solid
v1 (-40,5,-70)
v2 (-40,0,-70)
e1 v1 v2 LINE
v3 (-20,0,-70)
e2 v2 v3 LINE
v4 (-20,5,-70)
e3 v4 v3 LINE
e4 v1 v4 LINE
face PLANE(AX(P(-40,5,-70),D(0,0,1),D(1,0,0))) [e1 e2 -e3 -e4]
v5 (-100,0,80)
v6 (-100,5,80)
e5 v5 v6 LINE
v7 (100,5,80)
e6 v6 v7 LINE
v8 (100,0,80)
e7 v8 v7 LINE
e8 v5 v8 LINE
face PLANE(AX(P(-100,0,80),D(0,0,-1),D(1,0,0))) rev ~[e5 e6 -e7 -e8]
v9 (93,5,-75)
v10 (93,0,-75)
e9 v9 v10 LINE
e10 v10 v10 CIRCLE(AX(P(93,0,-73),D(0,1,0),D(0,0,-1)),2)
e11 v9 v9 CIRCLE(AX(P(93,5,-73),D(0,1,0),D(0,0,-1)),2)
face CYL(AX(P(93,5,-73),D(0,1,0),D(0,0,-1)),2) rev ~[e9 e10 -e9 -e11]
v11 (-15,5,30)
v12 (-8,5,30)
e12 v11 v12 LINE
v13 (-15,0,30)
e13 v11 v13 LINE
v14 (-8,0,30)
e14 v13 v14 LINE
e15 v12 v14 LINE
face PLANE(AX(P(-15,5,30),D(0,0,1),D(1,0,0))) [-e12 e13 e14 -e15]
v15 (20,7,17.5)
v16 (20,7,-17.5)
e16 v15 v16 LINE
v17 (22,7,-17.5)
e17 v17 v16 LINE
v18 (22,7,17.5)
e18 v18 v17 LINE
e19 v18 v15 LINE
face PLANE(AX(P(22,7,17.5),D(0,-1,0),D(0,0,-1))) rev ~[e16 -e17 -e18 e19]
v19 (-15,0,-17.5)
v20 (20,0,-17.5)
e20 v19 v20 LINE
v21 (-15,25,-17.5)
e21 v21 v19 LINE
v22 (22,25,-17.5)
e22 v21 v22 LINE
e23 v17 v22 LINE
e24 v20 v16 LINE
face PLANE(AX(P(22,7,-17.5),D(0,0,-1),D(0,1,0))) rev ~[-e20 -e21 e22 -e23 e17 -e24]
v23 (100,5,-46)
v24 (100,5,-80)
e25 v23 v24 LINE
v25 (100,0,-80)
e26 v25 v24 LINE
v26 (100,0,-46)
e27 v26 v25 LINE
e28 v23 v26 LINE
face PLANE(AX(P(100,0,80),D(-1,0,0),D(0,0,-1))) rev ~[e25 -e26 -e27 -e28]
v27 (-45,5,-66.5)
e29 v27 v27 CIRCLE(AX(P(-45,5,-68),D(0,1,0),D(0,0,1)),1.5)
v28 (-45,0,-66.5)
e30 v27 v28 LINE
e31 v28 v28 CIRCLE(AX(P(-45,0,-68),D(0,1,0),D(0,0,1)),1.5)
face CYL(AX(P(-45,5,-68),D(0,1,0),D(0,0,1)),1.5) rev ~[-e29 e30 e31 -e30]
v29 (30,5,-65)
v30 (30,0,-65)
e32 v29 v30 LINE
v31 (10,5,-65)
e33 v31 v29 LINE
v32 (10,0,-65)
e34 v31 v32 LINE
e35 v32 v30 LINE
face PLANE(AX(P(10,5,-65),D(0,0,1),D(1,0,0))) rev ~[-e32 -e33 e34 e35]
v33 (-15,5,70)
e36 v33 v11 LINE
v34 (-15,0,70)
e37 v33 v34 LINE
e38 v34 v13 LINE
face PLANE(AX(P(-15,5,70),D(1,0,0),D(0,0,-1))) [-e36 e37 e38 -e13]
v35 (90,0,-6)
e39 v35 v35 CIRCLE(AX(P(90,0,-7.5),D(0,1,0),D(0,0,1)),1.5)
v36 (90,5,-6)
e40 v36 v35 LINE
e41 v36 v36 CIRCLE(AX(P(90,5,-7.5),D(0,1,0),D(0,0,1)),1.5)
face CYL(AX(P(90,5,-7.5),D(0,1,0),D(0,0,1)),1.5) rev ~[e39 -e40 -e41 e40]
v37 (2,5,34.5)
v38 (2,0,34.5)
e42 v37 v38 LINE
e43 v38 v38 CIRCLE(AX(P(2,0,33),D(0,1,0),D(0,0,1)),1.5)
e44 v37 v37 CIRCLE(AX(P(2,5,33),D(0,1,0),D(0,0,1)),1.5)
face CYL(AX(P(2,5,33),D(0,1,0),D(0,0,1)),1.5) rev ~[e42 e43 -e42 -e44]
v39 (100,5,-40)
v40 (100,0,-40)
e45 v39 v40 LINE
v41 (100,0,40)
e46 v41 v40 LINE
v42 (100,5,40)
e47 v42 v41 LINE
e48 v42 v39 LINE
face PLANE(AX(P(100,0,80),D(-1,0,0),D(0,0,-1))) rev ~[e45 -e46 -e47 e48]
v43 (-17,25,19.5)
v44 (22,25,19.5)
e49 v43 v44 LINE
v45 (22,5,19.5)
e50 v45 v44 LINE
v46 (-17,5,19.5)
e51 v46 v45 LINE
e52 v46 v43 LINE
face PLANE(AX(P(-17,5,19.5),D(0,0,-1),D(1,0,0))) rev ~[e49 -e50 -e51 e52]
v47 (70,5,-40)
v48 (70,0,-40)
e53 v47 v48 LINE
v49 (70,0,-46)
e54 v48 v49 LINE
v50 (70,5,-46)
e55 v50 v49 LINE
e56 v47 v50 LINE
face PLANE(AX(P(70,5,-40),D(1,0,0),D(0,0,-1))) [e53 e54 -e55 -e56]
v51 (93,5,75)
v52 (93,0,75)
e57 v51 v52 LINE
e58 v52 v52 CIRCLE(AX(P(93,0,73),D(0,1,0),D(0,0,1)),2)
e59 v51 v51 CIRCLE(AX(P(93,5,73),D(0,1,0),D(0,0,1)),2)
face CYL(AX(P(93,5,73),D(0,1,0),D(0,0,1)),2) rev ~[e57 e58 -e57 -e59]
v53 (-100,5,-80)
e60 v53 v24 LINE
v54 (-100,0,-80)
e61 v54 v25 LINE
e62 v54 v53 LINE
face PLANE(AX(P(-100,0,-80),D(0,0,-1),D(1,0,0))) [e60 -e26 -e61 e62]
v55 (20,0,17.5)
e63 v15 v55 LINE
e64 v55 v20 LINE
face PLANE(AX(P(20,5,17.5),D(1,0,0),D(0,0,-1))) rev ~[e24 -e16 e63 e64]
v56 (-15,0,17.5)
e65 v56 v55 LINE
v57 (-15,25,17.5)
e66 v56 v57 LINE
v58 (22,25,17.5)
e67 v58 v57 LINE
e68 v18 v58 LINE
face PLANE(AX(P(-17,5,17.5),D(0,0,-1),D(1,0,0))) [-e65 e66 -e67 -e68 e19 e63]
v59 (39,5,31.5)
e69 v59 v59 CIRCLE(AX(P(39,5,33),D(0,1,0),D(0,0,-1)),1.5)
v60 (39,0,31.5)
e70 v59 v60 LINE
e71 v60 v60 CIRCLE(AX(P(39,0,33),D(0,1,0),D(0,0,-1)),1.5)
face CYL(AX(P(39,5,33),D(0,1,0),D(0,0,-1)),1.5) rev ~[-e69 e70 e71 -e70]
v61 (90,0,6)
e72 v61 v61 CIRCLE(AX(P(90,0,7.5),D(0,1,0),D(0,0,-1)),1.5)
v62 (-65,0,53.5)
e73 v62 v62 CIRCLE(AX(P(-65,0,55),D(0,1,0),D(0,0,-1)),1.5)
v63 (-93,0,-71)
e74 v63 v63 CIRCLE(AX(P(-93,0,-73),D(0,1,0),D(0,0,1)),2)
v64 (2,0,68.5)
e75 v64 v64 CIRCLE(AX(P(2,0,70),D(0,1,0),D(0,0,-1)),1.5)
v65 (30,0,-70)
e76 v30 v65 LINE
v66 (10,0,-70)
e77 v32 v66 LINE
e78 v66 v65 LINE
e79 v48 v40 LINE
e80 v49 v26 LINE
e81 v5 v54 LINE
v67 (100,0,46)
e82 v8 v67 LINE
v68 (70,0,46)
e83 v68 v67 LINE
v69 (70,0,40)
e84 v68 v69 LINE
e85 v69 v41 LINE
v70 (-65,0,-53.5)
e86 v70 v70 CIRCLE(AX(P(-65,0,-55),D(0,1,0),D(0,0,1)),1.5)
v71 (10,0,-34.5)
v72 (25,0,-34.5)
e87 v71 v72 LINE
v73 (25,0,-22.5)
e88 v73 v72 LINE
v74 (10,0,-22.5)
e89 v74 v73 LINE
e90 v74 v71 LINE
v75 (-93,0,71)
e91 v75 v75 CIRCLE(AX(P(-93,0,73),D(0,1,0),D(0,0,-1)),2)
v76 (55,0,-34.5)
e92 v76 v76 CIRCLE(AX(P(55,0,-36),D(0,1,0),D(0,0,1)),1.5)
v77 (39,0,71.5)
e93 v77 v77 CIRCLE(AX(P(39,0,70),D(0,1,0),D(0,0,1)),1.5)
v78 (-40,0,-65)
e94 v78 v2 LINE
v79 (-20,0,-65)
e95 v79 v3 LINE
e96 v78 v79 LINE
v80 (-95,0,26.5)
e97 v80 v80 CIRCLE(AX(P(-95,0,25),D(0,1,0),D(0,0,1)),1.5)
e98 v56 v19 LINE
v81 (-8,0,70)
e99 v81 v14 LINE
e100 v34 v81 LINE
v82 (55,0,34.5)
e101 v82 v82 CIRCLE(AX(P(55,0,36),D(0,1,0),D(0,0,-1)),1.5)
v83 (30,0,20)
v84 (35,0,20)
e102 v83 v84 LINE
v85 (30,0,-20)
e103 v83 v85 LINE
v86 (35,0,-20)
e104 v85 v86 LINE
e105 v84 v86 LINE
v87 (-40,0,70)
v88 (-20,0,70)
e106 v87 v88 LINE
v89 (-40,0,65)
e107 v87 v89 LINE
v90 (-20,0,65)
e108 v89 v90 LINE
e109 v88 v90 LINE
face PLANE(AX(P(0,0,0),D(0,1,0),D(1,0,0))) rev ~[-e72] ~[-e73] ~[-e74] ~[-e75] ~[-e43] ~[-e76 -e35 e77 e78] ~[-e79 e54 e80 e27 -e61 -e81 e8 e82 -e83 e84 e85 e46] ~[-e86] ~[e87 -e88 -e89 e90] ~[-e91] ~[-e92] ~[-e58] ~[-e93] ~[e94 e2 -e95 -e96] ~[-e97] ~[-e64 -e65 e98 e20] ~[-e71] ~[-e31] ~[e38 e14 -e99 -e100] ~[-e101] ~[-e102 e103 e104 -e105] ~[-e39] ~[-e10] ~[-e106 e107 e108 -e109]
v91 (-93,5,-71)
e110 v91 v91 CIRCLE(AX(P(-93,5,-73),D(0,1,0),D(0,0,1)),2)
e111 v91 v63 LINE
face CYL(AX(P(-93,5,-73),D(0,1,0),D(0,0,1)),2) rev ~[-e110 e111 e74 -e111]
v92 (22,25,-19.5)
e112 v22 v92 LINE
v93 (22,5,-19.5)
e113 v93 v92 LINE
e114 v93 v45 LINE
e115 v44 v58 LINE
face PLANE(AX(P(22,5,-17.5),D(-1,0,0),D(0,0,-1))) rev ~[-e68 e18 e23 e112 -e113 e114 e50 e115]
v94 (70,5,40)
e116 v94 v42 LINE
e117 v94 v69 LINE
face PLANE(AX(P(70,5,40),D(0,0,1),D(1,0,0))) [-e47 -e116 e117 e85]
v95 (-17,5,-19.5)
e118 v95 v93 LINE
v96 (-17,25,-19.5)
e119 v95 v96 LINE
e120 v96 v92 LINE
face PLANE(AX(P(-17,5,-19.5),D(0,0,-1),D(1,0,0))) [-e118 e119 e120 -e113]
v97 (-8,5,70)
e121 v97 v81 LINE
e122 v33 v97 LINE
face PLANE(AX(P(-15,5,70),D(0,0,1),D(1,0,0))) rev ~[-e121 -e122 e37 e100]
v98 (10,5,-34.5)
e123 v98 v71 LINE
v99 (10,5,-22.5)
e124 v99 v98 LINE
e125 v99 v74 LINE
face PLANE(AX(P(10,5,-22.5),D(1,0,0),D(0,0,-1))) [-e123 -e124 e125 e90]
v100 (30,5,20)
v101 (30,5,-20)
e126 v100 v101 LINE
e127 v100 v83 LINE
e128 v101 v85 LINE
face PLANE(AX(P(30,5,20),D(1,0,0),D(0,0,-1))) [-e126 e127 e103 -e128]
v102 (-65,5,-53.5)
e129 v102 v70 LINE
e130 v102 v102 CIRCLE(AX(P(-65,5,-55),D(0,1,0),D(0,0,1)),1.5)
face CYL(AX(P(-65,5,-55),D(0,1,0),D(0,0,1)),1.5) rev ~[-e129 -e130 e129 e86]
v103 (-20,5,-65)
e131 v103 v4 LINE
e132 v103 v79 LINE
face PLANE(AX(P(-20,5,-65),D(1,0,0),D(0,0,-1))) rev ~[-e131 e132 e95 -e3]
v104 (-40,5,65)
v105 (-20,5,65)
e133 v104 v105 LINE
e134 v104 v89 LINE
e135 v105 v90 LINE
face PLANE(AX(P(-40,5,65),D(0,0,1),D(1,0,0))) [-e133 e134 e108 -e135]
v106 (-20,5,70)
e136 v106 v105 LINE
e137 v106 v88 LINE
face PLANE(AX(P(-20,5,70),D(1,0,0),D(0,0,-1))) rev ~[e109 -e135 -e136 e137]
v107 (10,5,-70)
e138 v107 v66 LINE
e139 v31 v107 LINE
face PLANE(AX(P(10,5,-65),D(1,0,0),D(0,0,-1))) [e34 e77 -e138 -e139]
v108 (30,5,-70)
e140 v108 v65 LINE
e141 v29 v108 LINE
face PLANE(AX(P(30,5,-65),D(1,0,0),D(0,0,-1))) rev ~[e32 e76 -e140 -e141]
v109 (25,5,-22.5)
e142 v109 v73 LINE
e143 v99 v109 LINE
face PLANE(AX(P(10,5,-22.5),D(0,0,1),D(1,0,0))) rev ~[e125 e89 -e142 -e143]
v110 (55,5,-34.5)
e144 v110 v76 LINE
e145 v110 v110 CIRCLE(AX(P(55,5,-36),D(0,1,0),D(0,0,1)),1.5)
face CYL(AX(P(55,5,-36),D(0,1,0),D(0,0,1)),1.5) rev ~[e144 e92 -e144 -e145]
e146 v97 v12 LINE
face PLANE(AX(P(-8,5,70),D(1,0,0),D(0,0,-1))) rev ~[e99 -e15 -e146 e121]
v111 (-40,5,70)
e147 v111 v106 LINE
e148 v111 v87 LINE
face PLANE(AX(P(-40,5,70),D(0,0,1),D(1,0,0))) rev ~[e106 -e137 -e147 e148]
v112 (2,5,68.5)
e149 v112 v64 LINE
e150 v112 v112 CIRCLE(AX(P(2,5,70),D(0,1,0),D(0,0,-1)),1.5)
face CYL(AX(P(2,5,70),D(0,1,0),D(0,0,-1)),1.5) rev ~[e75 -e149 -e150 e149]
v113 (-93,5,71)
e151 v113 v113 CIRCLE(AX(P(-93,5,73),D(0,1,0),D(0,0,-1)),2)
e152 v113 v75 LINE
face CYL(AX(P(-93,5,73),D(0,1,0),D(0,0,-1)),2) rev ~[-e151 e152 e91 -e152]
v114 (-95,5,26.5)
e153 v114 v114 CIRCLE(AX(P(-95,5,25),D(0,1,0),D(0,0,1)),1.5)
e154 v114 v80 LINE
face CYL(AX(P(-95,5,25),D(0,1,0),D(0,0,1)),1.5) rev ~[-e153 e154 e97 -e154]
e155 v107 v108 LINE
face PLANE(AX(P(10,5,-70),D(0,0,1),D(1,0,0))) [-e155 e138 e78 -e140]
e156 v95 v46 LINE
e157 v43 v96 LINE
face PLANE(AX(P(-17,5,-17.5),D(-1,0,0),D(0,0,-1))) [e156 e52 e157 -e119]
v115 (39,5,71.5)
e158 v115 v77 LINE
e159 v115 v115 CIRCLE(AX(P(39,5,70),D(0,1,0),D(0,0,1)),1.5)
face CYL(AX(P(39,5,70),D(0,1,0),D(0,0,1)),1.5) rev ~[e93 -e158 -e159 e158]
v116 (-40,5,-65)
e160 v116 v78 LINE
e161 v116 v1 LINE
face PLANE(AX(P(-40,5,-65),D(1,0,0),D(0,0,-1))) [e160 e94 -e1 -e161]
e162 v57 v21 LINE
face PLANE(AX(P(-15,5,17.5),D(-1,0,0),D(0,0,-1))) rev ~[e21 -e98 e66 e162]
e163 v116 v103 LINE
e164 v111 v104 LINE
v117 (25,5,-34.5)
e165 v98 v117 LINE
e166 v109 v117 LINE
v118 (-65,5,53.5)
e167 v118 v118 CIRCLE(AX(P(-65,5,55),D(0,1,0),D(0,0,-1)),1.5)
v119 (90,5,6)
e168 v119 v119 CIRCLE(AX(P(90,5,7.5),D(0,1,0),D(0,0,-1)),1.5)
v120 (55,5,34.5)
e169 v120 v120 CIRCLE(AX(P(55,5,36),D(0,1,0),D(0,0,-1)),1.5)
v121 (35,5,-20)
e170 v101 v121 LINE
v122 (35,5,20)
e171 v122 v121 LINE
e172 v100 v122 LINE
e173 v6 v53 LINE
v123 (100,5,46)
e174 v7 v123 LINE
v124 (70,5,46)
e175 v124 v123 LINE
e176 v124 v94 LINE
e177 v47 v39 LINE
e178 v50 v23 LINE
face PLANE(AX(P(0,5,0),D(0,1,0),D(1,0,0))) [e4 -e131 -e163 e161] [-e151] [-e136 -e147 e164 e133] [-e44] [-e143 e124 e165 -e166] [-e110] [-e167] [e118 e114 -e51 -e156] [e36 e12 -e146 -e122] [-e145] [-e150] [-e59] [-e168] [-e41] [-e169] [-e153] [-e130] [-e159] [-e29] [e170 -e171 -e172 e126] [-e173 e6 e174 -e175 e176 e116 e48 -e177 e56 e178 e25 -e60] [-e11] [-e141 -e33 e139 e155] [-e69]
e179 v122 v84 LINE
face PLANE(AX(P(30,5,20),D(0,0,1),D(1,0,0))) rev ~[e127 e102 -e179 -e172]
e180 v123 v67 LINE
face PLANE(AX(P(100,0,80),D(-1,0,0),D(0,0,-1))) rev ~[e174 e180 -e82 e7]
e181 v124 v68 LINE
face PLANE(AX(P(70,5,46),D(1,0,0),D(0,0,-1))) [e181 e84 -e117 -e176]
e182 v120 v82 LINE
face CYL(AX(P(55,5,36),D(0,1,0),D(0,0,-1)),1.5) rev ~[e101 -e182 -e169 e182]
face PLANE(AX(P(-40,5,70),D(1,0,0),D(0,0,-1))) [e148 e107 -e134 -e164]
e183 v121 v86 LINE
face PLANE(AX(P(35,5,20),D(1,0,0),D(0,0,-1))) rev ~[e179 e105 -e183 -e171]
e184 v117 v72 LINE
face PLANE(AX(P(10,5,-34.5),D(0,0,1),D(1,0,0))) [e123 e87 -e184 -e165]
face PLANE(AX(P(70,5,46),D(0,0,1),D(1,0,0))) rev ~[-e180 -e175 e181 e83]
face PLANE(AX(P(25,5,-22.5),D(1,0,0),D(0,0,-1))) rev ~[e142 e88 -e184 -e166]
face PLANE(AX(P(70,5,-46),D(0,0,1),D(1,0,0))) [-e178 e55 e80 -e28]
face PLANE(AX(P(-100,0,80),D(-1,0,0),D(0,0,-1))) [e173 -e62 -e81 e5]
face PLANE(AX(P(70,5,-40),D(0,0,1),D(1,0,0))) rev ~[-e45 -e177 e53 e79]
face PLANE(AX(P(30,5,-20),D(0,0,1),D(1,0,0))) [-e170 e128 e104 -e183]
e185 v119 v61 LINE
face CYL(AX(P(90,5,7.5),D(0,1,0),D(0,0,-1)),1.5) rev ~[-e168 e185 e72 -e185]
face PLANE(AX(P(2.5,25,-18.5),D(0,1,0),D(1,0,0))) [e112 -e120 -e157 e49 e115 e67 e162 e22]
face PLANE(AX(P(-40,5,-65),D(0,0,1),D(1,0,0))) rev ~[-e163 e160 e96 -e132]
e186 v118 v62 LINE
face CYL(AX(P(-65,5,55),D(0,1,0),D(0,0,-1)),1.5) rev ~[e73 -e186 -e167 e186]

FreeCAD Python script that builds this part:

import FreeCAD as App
import Part
import Sketcher

V = App.Vector

doc = App.newDocument("Part")
params = doc.addObject("Spreadsheet::Sheet", "Params")
for row, (alias, value) in enumerate([
    ("sketch1_width", "200 mm"),
    ("sketch1_height", "160 mm"),
    ("pad1_length", "5 mm"),
    ("sketch2_diameter", "4 mm"),
    ("pocket1_length", "5 mm"),
    ("sketch3_diameter", "3 mm"),
    ("pocket2_length", "5 mm"),
    ("sketch4_diameter", "3 mm"),
    ("pocket3_length", "5 mm"),
    ("sketch5_width", "35 mm"),
    ("pocket4_length", "5 mm"),
    ("sketch6_width", "7 mm"),
    ("sketch6_width2", "5 mm"),
    ("sketch6_width3", "20 mm"),
    ("sketch6_height", "40 mm"),
    ("pocket5_length", "5 mm"),
    ("sketch7_width", "15 mm"),
    ("sketch7_width2", "30 mm"),
    ("sketch7_height", "12 mm"),
    ("sketch7_height2", "6 mm"),
    ("pocket6_length", "5 mm"),
    ("sketch8_width", "20 mm"),
    ("sketch8_height", "5 mm"),
    ("pocket7_length", "5 mm"),
    ("sketch9_diameter", "3 mm"),
    ("pocket8_length", "5 mm"),
    ("sketch10_diameter", "3 mm"),
    ("pocket9_length", "5 mm"),
    ("sketch11_diameter", "3 mm"),
    ("pocket10_length", "5 mm"),
    ("sketch12_width", "2 mm"),
    ("sketch12_height", "35 mm"),
    ("pad2_length", "20 mm"),
    ("sketch13_width", "39 mm"),
    ("sketch13_height", "2 mm"),
    ("pad3_length", "20 mm"),
    ("sketch14_width", "39 mm"),
    ("sketch14_height", "2 mm"),
    ("pad4_length", "20 mm"),
    ("sketch15_width", "18 mm"),
    ("sketch15_height", "35 mm"),
    ("pocket11_length", "20 mm"),
], start=1):
    params.set(f"A{row}", alias)
    params.set(f"B{row}", "=" + value)
    params.setAlias(f"B{row}", alias)

body = doc.addObject("PartDesign::Body", "Body")

# Sketch on XZ plane
sketch1 = body.newObject("Sketcher::SketchObject", "Sketch")
sketch1.AttachmentSupport = (doc.getObject("XZ_Plane"), [""])
sketch1.MapMode = "FlatFace"
sketch1.addGeometry([
    Part.LineSegment(V(-100, -80, 0), V(-100, 80, 0)),
    Part.LineSegment(V(-100, 80, 0), V(100, 80, 0)),
    Part.LineSegment(V(100, 80, 0), V(100, -80, 0)),
    Part.LineSegment(V(100, -80, 0), V(-100, -80, 0)),
], False)
sketch1.addConstraint([
    Sketcher.Constraint("Coincident", 0, 2, 1, 1),
    Sketcher.Constraint("Coincident", 1, 2, 2, 1),
    Sketcher.Constraint("Coincident", 2, 2, 3, 1),
    Sketcher.Constraint("Coincident", 3, 2, 0, 1),
    Sketcher.Constraint("Vertical", 0),
    Sketcher.Constraint("Horizontal", 1),
    Sketcher.Constraint("Vertical", 2),
    Sketcher.Constraint("Horizontal", 3),
    Sketcher.Constraint("Symmetric", 0, 2, 2, 2, -1, 1),
    Sketcher.Constraint("DistanceX", 1, 1, 1, 2, 200.0),
    Sketcher.Constraint("DistanceY", 0, 1, 0, 2, 160.0),
])
sketch1.setExpression("Constraints[9]", "Params.sketch1_width")
sketch1.setExpression("Constraints[10]", "Params.sketch1_height")
pad1 = body.newObject("PartDesign::Pad", "Pad")
pad1.Profile = sketch1
pad1.setExpression("Length", "Params.pad1_length")
pad1.Reversed = True

# Sketch on XZ plane
sketch2 = body.newObject("Sketcher::SketchObject", "Sketch001")
sketch2.AttachmentSupport = (doc.getObject("XZ_Plane"), [""])
sketch2.MapMode = "FlatFace"
sketch2.AttachmentOffset = App.Placement(V(0, 0, -5), App.Rotation())
sketch2.addGeometry([
    Part.Circle(V(-93, -73, 0), V(0, 0, 1), 2),
    Part.Circle(V(93, -73, 0), V(0, 0, 1), 2),
    Part.Circle(V(93, 73, 0), V(0, 0, 1), 2),
    Part.Circle(V(-93, 73, 0), V(0, 0, 1), 2),
], False)
sketch2.addConstraint([
    Sketcher.Constraint("Equal", 0, 1),
    Sketcher.Constraint("Equal", 1, 2),
    Sketcher.Constraint("Equal", 2, 3),
    Sketcher.Constraint("Symmetric", 0, 3, 2, 3, -1, 1),
    Sketcher.Constraint("Symmetric", 1, 3, 3, 3, -1, 1),
    Sketcher.Constraint("Symmetric", 0, 3, 1, 3, -2),
    Sketcher.Constraint("Diameter", 0, 4.0),
    Sketcher.Constraint("DistanceX", 0, 3, -1, 1, 93.0),
    Sketcher.Constraint("DistanceY", 0, 3, -1, 1, 73.0),
])
sketch2.setExpression("Constraints[6]", "Params.sketch2_diameter")
pocket1 = body.newObject("PartDesign::Pocket", "Pocket")
pocket1.Profile = sketch2
pocket1.setExpression("Length", "Params.pocket1_length")
pocket1.Reversed = True

# Sketch on XZ plane
sketch3 = body.newObject("Sketcher::SketchObject", "Sketch002")
sketch3.AttachmentSupport = (doc.getObject("XZ_Plane"), [""])
sketch3.MapMode = "FlatFace"
sketch3.AttachmentOffset = App.Placement(V(0, 0, -5), App.Rotation())
sketch3.addGeometry([
    Part.Circle(V(90, -7.5, 0), V(0, 0, 1), 1.5),
    Part.Circle(V(90, 7.5, 0), V(0, 0, 1), 1.5),
], False)
sketch3.addConstraint([
    Sketcher.Constraint("Equal", 0, 1),
    Sketcher.Constraint("Symmetric", 0, 3, 1, 3, -1),
    Sketcher.Constraint("Diameter", 0, 3.0),
    Sketcher.Constraint("DistanceX", -1, 1, 0, 3, 90.0),
    Sketcher.Constraint("DistanceY", 0, 3, 1, 3, 15.0),
])
sketch3.setExpression("Constraints[2]", "Params.sketch3_diameter")
pocket2 = body.newObject("PartDesign::Pocket", "Pocket001")
pocket2.Profile = sketch3
pocket2.setExpression("Length", "Params.pocket2_length")
pocket2.Reversed = True

# Sketch on XZ plane
sketch4 = body.newObject("Sketcher::SketchObject", "Sketch003")
sketch4.AttachmentSupport = (doc.getObject("XZ_Plane"), [""])
sketch4.MapMode = "FlatFace"
sketch4.AttachmentOffset = App.Placement(V(0, 0, -5), App.Rotation())
sketch4.addGeometry([
    Part.Circle(V(55, -36, 0), V(0, 0, 1), 1.5),
    Part.Circle(V(55, 36, 0), V(0, 0, 1), 1.5),
], False)
sketch4.addConstraint([
    Sketcher.Constraint("Equal", 0, 1),
    Sketcher.Constraint("Symmetric", 0, 3, 1, 3, -1),
    Sketcher.Constraint("Diameter", 0, 3.0),
    Sketcher.Constraint("DistanceX", -1, 1, 0, 3, 55.0),
    Sketcher.Constraint("DistanceY", 0, 3, -1, 1, 36.0),
])
sketch4.setExpression("Constraints[2]", "Params.sketch4_diameter")
pocket3 = body.newObject("PartDesign::Pocket", "Pocket002")
pocket3.Profile = sketch4
pocket3.setExpression("Length", "Params.pocket3_length")
pocket3.Reversed = True

# Sketch on XZ plane
sketch5 = body.newObject("Sketcher::SketchObject", "Sketch004")
sketch5.AttachmentSupport = (doc.getObject("XZ_Plane"), [""])
sketch5.MapMode = "FlatFace"
sketch5.AttachmentOffset = App.Placement(V(0, 0, -5), App.Rotation())
sketch5.addGeometry([
    Part.LineSegment(V(-15, -17.5, 0), V(-15, 17.5, 0)),
    Part.LineSegment(V(-15, 17.5, 0), V(20, 17.5, 0)),
    Part.LineSegment(V(20, 17.5, 0), V(20, -17.5, 0)),
    Part.LineSegment(V(20, -17.5, 0), V(-15, -17.5, 0)),
], False)
sketch5.addConstraint([
    Sketcher.Constraint("Coincident", 0, 2, 1, 1),
    Sketcher.Constraint("Coincident", 1, 2, 2, 1),
    Sketcher.Constraint("Coincident", 2, 2, 3, 1),
    Sketcher.Constraint("Coincident", 3, 2, 0, 1),
    Sketcher.Constraint("Vertical", 0),
    Sketcher.Constraint("Horizontal", 1),
    Sketcher.Constraint("Vertical", 2),
    Sketcher.Constraint("Horizontal", 3),
    Sketcher.Constraint("Equal", 3, 0),
    Sketcher.Constraint("DistanceX", 1, 1, 1, 2, 35.0),
    Sketcher.Constraint("DistanceX", 0, 2, -1, 1, 15.0),
    Sketcher.Constraint("DistanceY", -1, 1, 0, 2, 17.5),
])
sketch5.setExpression("Constraints[9]", "Params.sketch5_width")
pocket4 = body.newObject("PartDesign::Pocket", "Pocket003")
pocket4.Profile = sketch5
pocket4.setExpression("Length", "Params.pocket4_length")
pocket4.Reversed = True

# Sketch on XZ plane
sketch6 = body.newObject("Sketcher::SketchObject", "Sketch005")
sketch6.AttachmentSupport = (doc.getObject("XZ_Plane"), [""])
sketch6.MapMode = "FlatFace"
sketch6.AttachmentOffset = App.Placement(V(0, 0, -5), App.Rotation())
sketch6.addGeometry([
    Part.LineSegment(V(-15, 30, 0), V(-15, 70, 0)),  # 0
    Part.LineSegment(V(-15, 70, 0), V(-8, 70, 0)),  # 1
    Part.LineSegment(V(-8, 70, 0), V(-8, 30, 0)),  # 2
    Part.LineSegment(V(-8, 30, 0), V(-15, 30, 0)),  # 3
    Part.LineSegment(V(30, -20, 0), V(30, 20, 0)),  # 4
    Part.LineSegment(V(30, 20, 0), V(35, 20, 0)),  # 5
    Part.LineSegment(V(35, 20, 0), V(35, -20, 0)),  # 6
    Part.LineSegment(V(35, -20, 0), V(30, -20, 0)),  # 7
    Part.LineSegment(V(-40, -70, 0), V(-40, -65, 0)),  # 8
    Part.LineSegment(V(-40, -65, 0), V(-20, -65, 0)),  # 9
    Part.LineSegment(V(-20, -65, 0), V(-20, -70, 0)),  # 10
    Part.LineSegment(V(-20, -70, 0), V(-40, -70, 0)),  # 11
    Part.LineSegment(V(-40, 65, 0), V(-40, 70, 0)),  # 12
    Part.LineSegment(V(-40, 70, 0), V(-20, 70, 0)),  # 13
    Part.LineSegment(V(-20, 70, 0), V(-20, 65, 0)),  # 14
    Part.LineSegment(V(-20, 65, 0), V(-40, 65, 0)),  # 15
], False)
sketch6.addConstraint([
    Sketcher.Constraint("Coincident", 0, 2, 1, 1),
    Sketcher.Constraint("Coincident", 1, 2, 2, 1),
    Sketcher.Constraint("Coincident", 2, 2, 3, 1),
    Sketcher.Constraint("Coincident", 3, 2, 0, 1),
    Sketcher.Constraint("Coincident", 4, 2, 5, 1),
    Sketcher.Constraint("Coincident", 5, 2, 6, 1),
    Sketcher.Constraint("Coincident", 6, 2, 7, 1),
    Sketcher.Constraint("Coincident", 7, 2, 4, 1),
    Sketcher.Constraint("Coincident", 8, 2, 9, 1),
    Sketcher.Constraint("Coincident", 9, 2, 10, 1),
    Sketcher.Constraint("Coincident", 10, 2, 11, 1),
    Sketcher.Constraint("Coincident", 11, 2, 8, 1),
    Sketcher.Constraint("Coincident", 12, 2, 13, 1),
    Sketcher.Constraint("Coincident", 13, 2, 14, 1),
    Sketcher.Constraint("Coincident", 14, 2, 15, 1),
    Sketcher.Constraint("Coincident", 15, 2, 12, 1),
    Sketcher.Constraint("Vertical", 0),
    Sketcher.Constraint("Horizontal", 1),
    Sketcher.Constraint("Vertical", 2),
    Sketcher.Constraint("Horizontal", 3),
    Sketcher.Constraint("Vertical", 4),
    Sketcher.Constraint("Horizontal", 5),
    Sketcher.Constraint("Vertical", 6),
    Sketcher.Constraint("Horizontal", 7),
    Sketcher.Constraint("Vertical", 8),
    Sketcher.Constraint("Horizontal", 9),
    Sketcher.Constraint("Vertical", 10),
    Sketcher.Constraint("Horizontal", 11),
    Sketcher.Constraint("Vertical", 12),
    Sketcher.Constraint("Horizontal", 13),
    Sketcher.Constraint("Vertical", 14),
    Sketcher.Constraint("Horizontal", 15),
    Sketcher.Constraint("Symmetric", 11, 2, 12, 2, -1),
    Sketcher.Constraint("Symmetric", 9, 2, 14, 2, -1),
    Sketcher.Constraint("Horizontal", 1, 2, 12, 2),
    Sketcher.Constraint("Equal", 2, 4),
    Sketcher.Constraint("Equal", 7, 8),
    Sketcher.Constraint("DistanceX", 1, 1, 1, 2, 7.0),
    Sketcher.Constraint("DistanceX", 5, 1, 5, 2, 5.0),
    Sketcher.Constraint("DistanceX", 9, 1, 9, 2, 20.0),
    Sketcher.Constraint("DistanceY", 0, 1, 0, 2, 40.0),
    Sketcher.Constraint("DistanceX", 0, 2, -1, 1, 15.0),
    Sketcher.Constraint("DistanceY", -1, 1, 0, 2, 70.0),
    Sketcher.Constraint("DistanceX", -1, 1, 4, 2, 30.0),
    Sketcher.Constraint("DistanceY", -1, 1, 4, 2, 20.0),
    Sketcher.Constraint("DistanceX", 8, 2, -1, 1, 40.0),
])
sketch6.setExpression("Constraints[37]", "Params.sketch6_width")
sketch6.setExpression("Constraints[38]", "Params.sketch6_width2")
sketch6.setExpression("Constraints[39]", "Params.sketch6_width3")
sketch6.setExpression("Constraints[40]", "Params.sketch6_height")
pocket5 = body.newObject("PartDesign::Pocket", "Pocket004")
pocket5.Profile = sketch6
pocket5.setExpression("Length", "Params.pocket5_length")
pocket5.Reversed = True

# Sketch on XZ plane
sketch7 = body.newObject("Sketcher::SketchObject", "Sketch006")
sketch7.AttachmentSupport = (doc.getObject("XZ_Plane"), [""])
sketch7.MapMode = "FlatFace"
sketch7.AttachmentOffset = App.Placement(V(0, 0, -5), App.Rotation())
sketch7.addGeometry([
    Part.LineSegment(V(10, -34.5, 0), V(10, -22.5, 0)),  # 0
    Part.LineSegment(V(10, -22.5, 0), V(25, -22.5, 0)),  # 1
    Part.LineSegment(V(25, -22.5, 0), V(25, -34.5, 0)),  # 2
    Part.LineSegment(V(25, -34.5, 0), V(10, -34.5, 0)),  # 3
    Part.LineSegment(V(70, -46, 0), V(70, -40, 0)),  # 4
    Part.LineSegment(V(70, -40, 0), V(100, -40, 0)),  # 5
    Part.LineSegment(V(100, -40, 0), V(100, -46, 0)),  # 6
    Part.LineSegment(V(100, -46, 0), V(70, -46, 0)),  # 7
    Part.LineSegment(V(70, 40, 0), V(70, 46, 0)),  # 8
    Part.LineSegment(V(70, 46, 0), V(100, 46, 0)),  # 9
    Part.LineSegment(V(100, 46, 0), V(100, 40, 0)),  # 10
    Part.LineSegment(V(100, 40, 0), V(70, 40, 0)),  # 11
], False)
sketch7.addConstraint([
    Sketcher.Constraint("Coincident", 0, 2, 1, 1),
    Sketcher.Constraint("Coincident", 1, 2, 2, 1),
    Sketcher.Constraint("Coincident", 2, 2, 3, 1),
    Sketcher.Constraint("Coincident", 3, 2, 0, 1),
    Sketcher.Constraint("Coincident", 4, 2, 5, 1),
    Sketcher.Constraint("Coincident", 5, 2, 6, 1),
    Sketcher.Constraint("Coincident", 6, 2, 7, 1),
    Sketcher.Constraint("Coincident", 7, 2, 4, 1),
    Sketcher.Constraint("Coincident", 8, 2, 9, 1),
    Sketcher.Constraint("Coincident", 9, 2, 10, 1),
    Sketcher.Constraint("Coincident", 10, 2, 11, 1),
    Sketcher.Constraint("Coincident", 11, 2, 8, 1),
    Sketcher.Constraint("Vertical", 0),
    Sketcher.Constraint("Horizontal", 1),
    Sketcher.Constraint("Vertical", 2),
    Sketcher.Constraint("Horizontal", 3),
    Sketcher.Constraint("Vertical", 4),
    Sketcher.Constraint("Horizontal", 5),
    Sketcher.Constraint("Vertical", 6),
    Sketcher.Constraint("Horizontal", 7),
    Sketcher.Constraint("Vertical", 8),
    Sketcher.Constraint("Horizontal", 9),
    Sketcher.Constraint("Vertical", 10),
    Sketcher.Constraint("Horizontal", 11),
    Sketcher.Constraint("Symmetric", 7, 2, 8, 2, -1),
    Sketcher.Constraint("Symmetric", 5, 2, 10, 2, -1),
    Sketcher.Constraint("DistanceX", 1, 1, 1, 2, 15.0),
    Sketcher.Constraint("DistanceX", 5, 1, 5, 2, 30.0),
    Sketcher.Constraint("DistanceY", 0, 1, 0, 2, 12.0),
    Sketcher.Constraint("DistanceY", 4, 1, 4, 2, 6.0),
    Sketcher.Constraint("DistanceX", -1, 1, 0, 2, 10.0),
    Sketcher.Constraint("DistanceX", -1, 1, 4, 2, 70.0),
    Sketcher.Constraint("DistanceY", 4, 2, -1, 1, 40.0),
    Sketcher.Constraint("DistanceY", 0, 2, -1, 1, 22.5),
])
sketch7.setExpression("Constraints[26]", "Params.sketch7_width")
sketch7.setExpression("Constraints[27]", "Params.sketch7_width2")
sketch7.setExpression("Constraints[28]", "Params.sketch7_height")
sketch7.setExpression("Constraints[29]", "Params.sketch7_height2")
pocket6 = body.newObject("PartDesign::Pocket", "Pocket005")
pocket6.Profile = sketch7
pocket6.setExpression("Length", "Params.pocket6_length")
pocket6.Reversed = True

# Sketch on XZ plane
sketch8 = body.newObject("Sketcher::SketchObject", "Sketch007")
sketch8.AttachmentSupport = (doc.getObject("XZ_Plane"), [""])
sketch8.MapMode = "FlatFace"
sketch8.AttachmentOffset = App.Placement(V(0, 0, -5), App.Rotation())
sketch8.addGeometry([
    Part.LineSegment(V(10, -70, 0), V(10, -65, 0)),
    Part.LineSegment(V(10, -65, 0), V(30, -65, 0)),
    Part.LineSegment(V(30, -65, 0), V(30, -70, 0)),
    Part.LineSegment(V(30, -70, 0), V(10, -70, 0)),
], False)
sketch8.addConstraint([
    Sketcher.Constraint("Coincident", 0, 2, 1, 1),
    Sketcher.Constraint("Coincident", 1, 2, 2, 1),
    Sketcher.Constraint("Coincident", 2, 2, 3, 1),
    Sketcher.Constraint("Coincident", 3, 2, 0, 1),
    Sketcher.Constraint("Vertical", 0),
    Sketcher.Constraint("Horizontal", 1),
    Sketcher.Constraint("Vertical", 2),
    Sketcher.Constraint("Horizontal", 3),
    Sketcher.Constraint("DistanceX", 1, 1, 1, 2, 20.0),
    Sketcher.Constraint("DistanceY", 0, 1, 0, 2, 5.0),
    Sketcher.Constraint("DistanceX", -1, 1, 0, 2, 10.0),
    Sketcher.Constraint("DistanceY", 0, 2, -1, 1, 65.0),
])
sketch8.setExpression("Constraints[8]", "Params.sketch8_width")
sketch8.setExpression("Constraints[9]", "Params.sketch8_height")
pocket7 = body.newObject("PartDesign::Pocket", "Pocket006")
pocket7.Profile = sketch8
pocket7.setExpression("Length", "Params.pocket7_length")
pocket7.Reversed = True

# Sketch on XZ plane
sketch9 = body.newObject("Sketcher::SketchObject", "Sketch008")
sketch9.AttachmentSupport = (doc.getObject("XZ_Plane"), [""])
sketch9.MapMode = "FlatFace"
sketch9.AttachmentOffset = App.Placement(V(0, 0, -5), App.Rotation())
sketch9.addGeometry([
    Part.Circle(V(-95, 25, 0), V(0, 0, 1), 1.5),
    Part.Circle(V(-45, -68, 0), V(0, 0, 1), 1.5),
], False)
sketch9.addConstraint([
    Sketcher.Constraint("Equal", 0, 1),
    Sketcher.Constraint("Diameter", 0, 3.0),
    Sketcher.Constraint("DistanceX", 0, 3, -1, 1, 95.0),
    Sketcher.Constraint("DistanceY", -1, 1, 0, 3, 25.0),
    Sketcher.Constraint("DistanceX", 1, 3, -1, 1, 45.0),
    Sketcher.Constraint("DistanceY", 1, 3, -1, 1, 68.0),
])
sketch9.setExpression("Constraints[1]", "Params.sketch9_diameter")
pocket8 = body.newObject("PartDesign::Pocket", "Pocket007")
pocket8.Profile = sketch9
pocket8.setExpression("Length", "Params.pocket8_length")
pocket8.Reversed = True

# Sketch on XZ plane
sketch10 = body.newObject("Sketcher::SketchObject", "Sketch009")
sketch10.AttachmentSupport = (doc.getObject("XZ_Plane"), [""])
sketch10.MapMode = "FlatFace"
sketch10.AttachmentOffset = App.Placement(V(0, 0, -5), App.Rotation())
sketch10.addGeometry([
    Part.Circle(V(2, 33, 0), V(0, 0, 1), 1.5),
    Part.Circle(V(2, 70, 0), V(0, 0, 1), 1.5),
    Part.Circle(V(39, 70, 0), V(0, 0, 1), 1.5),
    Part.Circle(V(39, 33, 0), V(0, 0, 1), 1.5),
], False)
sketch10.addConstraint([
    Sketcher.Constraint("Equal", 0, 1),
    Sketcher.Constraint("Equal", 1, 2),
    Sketcher.Constraint("Equal", 2, 3),
    Sketcher.Constraint("Horizontal", 1, 3, 2, 3),
    Sketcher.Constraint("Horizontal", 0, 3, 3, 3),
    Sketcher.Constraint("Vertical", 0, 3, 1, 3),
    Sketcher.Constraint("Vertical", 2, 3, 3, 3),
    Sketcher.Constraint("Diameter", 0, 3.0),
    Sketcher.Constraint("DistanceX", -1, 1, 0, 3, 2.0),
    Sketcher.Constraint("DistanceY", -1, 1, 0, 3, 33.0),
    Sketcher.Constraint("DistanceY", -1, 1, 1, 3, 70.0),
    Sketcher.Constraint("DistanceX", -1, 1, 2, 3, 39.0),
])
sketch10.setExpression("Constraints[7]", "Params.sketch10_diameter")
pocket9 = body.newObject("PartDesign::Pocket", "Pocket008")
pocket9.Profile = sketch10
pocket9.setExpression("Length", "Params.pocket9_length")
pocket9.Reversed = True

# Sketch on XZ plane
sketch11 = body.newObject("Sketcher::SketchObject", "Sketch010")
sketch11.AttachmentSupport = (doc.getObject("XZ_Plane"), [""])
sketch11.MapMode = "FlatFace"
sketch11.AttachmentOffset = App.Placement(V(0, 0, -5), App.Rotation())
sketch11.addGeometry([
    Part.Circle(V(-65, -55, 0), V(0, 0, 1), 1.5),
    Part.Circle(V(-65, 55, 0), V(0, 0, 1), 1.5),
], False)
sketch11.addConstraint([
    Sketcher.Constraint("Equal", 0, 1),
    Sketcher.Constraint("Symmetric", 0, 3, 1, 3, -1),
    Sketcher.Constraint("Diameter", 0, 3.0),
    Sketcher.Constraint("DistanceX", 0, 3, -1, 1, 65.0),
    Sketcher.Constraint("DistanceY", 0, 3, -1, 1, 55.0),
])
sketch11.setExpression("Constraints[2]", "Params.sketch11_diameter")
pocket10 = body.newObject("PartDesign::Pocket", "Pocket009")
pocket10.Profile = sketch11
pocket10.setExpression("Length", "Params.pocket10_length")
pocket10.Reversed = True

# Sketch on XZ plane
sketch12 = body.newObject("Sketcher::SketchObject", "Sketch011")
sketch12.AttachmentSupport = (doc.getObject("XZ_Plane"), [""])
sketch12.MapMode = "FlatFace"
sketch12.AttachmentOffset = App.Placement(V(0, 0, -5), App.Rotation())
sketch12.addGeometry([
    Part.LineSegment(V(-17, -17.5, 0), V(-17, 17.5, 0)),  # 0
    Part.LineSegment(V(-17, 17.5, 0), V(-15, 17.5, 0)),  # 1
    Part.LineSegment(V(-15, 17.5, 0), V(-15, -17.5, 0)),  # 2
    Part.LineSegment(V(-15, -17.5, 0), V(-17, -17.5, 0)),  # 3
    Part.LineSegment(V(20, -17.5, 0), V(20, 17.5, 0)),  # 4
    Part.LineSegment(V(20, 17.5, 0), V(22, 17.5, 0)),  # 5
    Part.LineSegment(V(22, 17.5, 0), V(22, -17.5, 0)),  # 6
    Part.LineSegment(V(22, -17.5, 0), V(20, -17.5, 0)),  # 7
], False)
sketch12.addConstraint([
    Sketcher.Constraint("Coincident", 0, 2, 1, 1),
    Sketcher.Constraint("Coincident", 1, 2, 2, 1),
    Sketcher.Constraint("Coincident", 2, 2, 3, 1),
    Sketcher.Constraint("Coincident", 3, 2, 0, 1),
    Sketcher.Constraint("Coincident", 4, 2, 5, 1),
    Sketcher.Constraint("Coincident", 5, 2, 6, 1),
    Sketcher.Constraint("Coincident", 6, 2, 7, 1),
    Sketcher.Constraint("Coincident", 7, 2, 4, 1),
    Sketcher.Constraint("Vertical", 0),
    Sketcher.Constraint("Horizontal", 1),
    Sketcher.Constraint("Vertical", 2),
    Sketcher.Constraint("Horizontal", 3),
    Sketcher.Constraint("Vertical", 4),
    Sketcher.Constraint("Horizontal", 5),
    Sketcher.Constraint("Vertical", 6),
    Sketcher.Constraint("Horizontal", 7),
    Sketcher.Constraint("Horizontal", 1, 2, 4, 2),
    Sketcher.Constraint("Horizontal", 3, 2, 6, 2),
    Sketcher.Constraint("Equal", 3, 5),
    Sketcher.Constraint("DistanceX", 1, 1, 1, 2, 2.0),
    Sketcher.Constraint("DistanceY", 0, 1, 0, 2, 35.0),
    Sketcher.Constraint("DistanceX", 0, 2, -1, 1, 17.0),
    Sketcher.Constraint("DistanceX", -1, 1, 4, 2, 20.0),
    Sketcher.Constraint("DistanceY", -1, 1, 0, 2, 17.5),
])
sketch12.setExpression("Constraints[19]", "Params.sketch12_width")
sketch12.setExpression("Constraints[20]", "Params.sketch12_height")
pad2 = body.newObject("PartDesign::Pad", "Pad001")
pad2.Profile = sketch12
pad2.setExpression("Length", "Params.pad2_length")
pad2.Reversed = True

# Sketch on XZ plane
sketch13 = body.newObject("Sketcher::SketchObject", "Sketch012")
sketch13.AttachmentSupport = (doc.getObject("XZ_Plane"), [""])
sketch13.MapMode = "FlatFace"
sketch13.AttachmentOffset = App.Placement(V(0, 0, -5), App.Rotation())
sketch13.addGeometry([
    Part.LineSegment(V(-17, 17.5, 0), V(-17, 19.5, 0)),
    Part.LineSegment(V(-17, 19.5, 0), V(22, 19.5, 0)),
    Part.LineSegment(V(22, 19.5, 0), V(22, 17.5, 0)),
    Part.LineSegment(V(22, 17.5, 0), V(-17, 17.5, 0)),
], False)
sketch13.addConstraint([
    Sketcher.Constraint("Coincident", 0, 2, 1, 1),
    Sketcher.Constraint("Coincident", 1, 2, 2, 1),
    Sketcher.Constraint("Coincident", 2, 2, 3, 1),
    Sketcher.Constraint("Coincident", 3, 2, 0, 1),
    Sketcher.Constraint("Vertical", 0),
    Sketcher.Constraint("Horizontal", 1),
    Sketcher.Constraint("Vertical", 2),
    Sketcher.Constraint("Horizontal", 3),
    Sketcher.Constraint("DistanceX", 1, 1, 1, 2, 39.0),
    Sketcher.Constraint("DistanceY", 0, 1, 0, 2, 2.0),
    Sketcher.Constraint("DistanceX", 0, 2, -1, 1, 17.0),
    Sketcher.Constraint("DistanceY", -1, 1, 0, 2, 19.5),
])
sketch13.setExpression("Constraints[8]", "Params.sketch13_width")
sketch13.setExpression("Constraints[9]", "Params.sketch13_height")
pad3 = body.newObject("PartDesign::Pad", "Pad002")
pad3.Profile = sketch13
pad3.setExpression("Length", "Params.pad3_length")
pad3.Reversed = True

# Sketch on XZ plane
sketch14 = body.newObject("Sketcher::SketchObject", "Sketch013")
sketch14.AttachmentSupport = (doc.getObject("XZ_Plane"), [""])
sketch14.MapMode = "FlatFace"
sketch14.AttachmentOffset = App.Placement(V(0, 0, -5), App.Rotation())
sketch14.addGeometry([
    Part.LineSegment(V(-17, -19.5, 0), V(-17, -17.5, 0)),
    Part.LineSegment(V(-17, -17.5, 0), V(22, -17.5, 0)),
    Part.LineSegment(V(22, -17.5, 0), V(22, -19.5, 0)),
    Part.LineSegment(V(22, -19.5, 0), V(-17, -19.5, 0)),
], False)
sketch14.addConstraint([
    Sketcher.Constraint("Coincident", 0, 2, 1, 1),
    Sketcher.Constraint("Coincident", 1, 2, 2, 1),
    Sketcher.Constraint("Coincident", 2, 2, 3, 1),
    Sketcher.Constraint("Coincident", 3, 2, 0, 1),
    Sketcher.Constraint("Vertical", 0),
    Sketcher.Constraint("Horizontal", 1),
    Sketcher.Constraint("Vertical", 2),
    Sketcher.Constraint("Horizontal", 3),
    Sketcher.Constraint("DistanceX", 1, 1, 1, 2, 39.0),
    Sketcher.Constraint("DistanceY", 0, 1, 0, 2, 2.0),
    Sketcher.Constraint("DistanceX", 0, 2, -1, 1, 17.0),
    Sketcher.Constraint("DistanceY", 0, 2, -1, 1, 17.5),
])
sketch14.setExpression("Constraints[8]", "Params.sketch14_width")
sketch14.setExpression("Constraints[9]", "Params.sketch14_height")
pad4 = body.newObject("PartDesign::Pad", "Pad003")
pad4.Profile = sketch14
pad4.setExpression("Length", "Params.pad4_length")
pad4.Reversed = True

# Sketch on YZ plane
sketch15 = body.newObject("Sketcher::SketchObject", "Sketch014")
sketch15.AttachmentSupport = (doc.getObject("YZ_Plane"), [""])
sketch15.MapMode = "FlatFace"
sketch15.AttachmentOffset = App.Placement(V(0, 0, 22), App.Rotation())
sketch15.addGeometry([
    Part.LineSegment(V(25, 17.5, 0), V(7, 17.5, 0)),
    Part.LineSegment(V(7, 17.5, 0), V(7, -17.5, 0)),
    Part.LineSegment(V(7, -17.5, 0), V(25, -17.5, 0)),
    Part.LineSegment(V(25, -17.5, 0), V(25, 17.5, 0)),
], False)
sketch15.addConstraint([
    Sketcher.Constraint("Coincident", 0, 2, 1, 1),
    Sketcher.Constraint("Coincident", 1, 2, 2, 1),
    Sketcher.Constraint("Coincident", 2, 2, 3, 1),
    Sketcher.Constraint("Coincident", 3, 2, 0, 1),
    Sketcher.Constraint("Horizontal", 0),
    Sketcher.Constraint("Vertical", 1),
    Sketcher.Constraint("Horizontal", 2),
    Sketcher.Constraint("Vertical", 3),
    Sketcher.Constraint("DistanceX", 0, 2, 0, 1, 18.0),
    Sketcher.Constraint("DistanceY", 1, 2, 1, 1, 35.0),
    Sketcher.Constraint("DistanceX", -1, 1, 0, 2, 7.0),
    Sketcher.Constraint("DistanceY", -1, 1, 0, 2, 17.5),
])
sketch15.setExpression("Constraints[8]", "Params.sketch15_width")
sketch15.setExpression("Constraints[9]", "Params.sketch15_height")
pocket11 = body.newObject("PartDesign::Pocket", "Pocket010")
pocket11.Profile = sketch15
pocket11.setExpression("Length", "Params.pocket11_length")

doc.recompute()
